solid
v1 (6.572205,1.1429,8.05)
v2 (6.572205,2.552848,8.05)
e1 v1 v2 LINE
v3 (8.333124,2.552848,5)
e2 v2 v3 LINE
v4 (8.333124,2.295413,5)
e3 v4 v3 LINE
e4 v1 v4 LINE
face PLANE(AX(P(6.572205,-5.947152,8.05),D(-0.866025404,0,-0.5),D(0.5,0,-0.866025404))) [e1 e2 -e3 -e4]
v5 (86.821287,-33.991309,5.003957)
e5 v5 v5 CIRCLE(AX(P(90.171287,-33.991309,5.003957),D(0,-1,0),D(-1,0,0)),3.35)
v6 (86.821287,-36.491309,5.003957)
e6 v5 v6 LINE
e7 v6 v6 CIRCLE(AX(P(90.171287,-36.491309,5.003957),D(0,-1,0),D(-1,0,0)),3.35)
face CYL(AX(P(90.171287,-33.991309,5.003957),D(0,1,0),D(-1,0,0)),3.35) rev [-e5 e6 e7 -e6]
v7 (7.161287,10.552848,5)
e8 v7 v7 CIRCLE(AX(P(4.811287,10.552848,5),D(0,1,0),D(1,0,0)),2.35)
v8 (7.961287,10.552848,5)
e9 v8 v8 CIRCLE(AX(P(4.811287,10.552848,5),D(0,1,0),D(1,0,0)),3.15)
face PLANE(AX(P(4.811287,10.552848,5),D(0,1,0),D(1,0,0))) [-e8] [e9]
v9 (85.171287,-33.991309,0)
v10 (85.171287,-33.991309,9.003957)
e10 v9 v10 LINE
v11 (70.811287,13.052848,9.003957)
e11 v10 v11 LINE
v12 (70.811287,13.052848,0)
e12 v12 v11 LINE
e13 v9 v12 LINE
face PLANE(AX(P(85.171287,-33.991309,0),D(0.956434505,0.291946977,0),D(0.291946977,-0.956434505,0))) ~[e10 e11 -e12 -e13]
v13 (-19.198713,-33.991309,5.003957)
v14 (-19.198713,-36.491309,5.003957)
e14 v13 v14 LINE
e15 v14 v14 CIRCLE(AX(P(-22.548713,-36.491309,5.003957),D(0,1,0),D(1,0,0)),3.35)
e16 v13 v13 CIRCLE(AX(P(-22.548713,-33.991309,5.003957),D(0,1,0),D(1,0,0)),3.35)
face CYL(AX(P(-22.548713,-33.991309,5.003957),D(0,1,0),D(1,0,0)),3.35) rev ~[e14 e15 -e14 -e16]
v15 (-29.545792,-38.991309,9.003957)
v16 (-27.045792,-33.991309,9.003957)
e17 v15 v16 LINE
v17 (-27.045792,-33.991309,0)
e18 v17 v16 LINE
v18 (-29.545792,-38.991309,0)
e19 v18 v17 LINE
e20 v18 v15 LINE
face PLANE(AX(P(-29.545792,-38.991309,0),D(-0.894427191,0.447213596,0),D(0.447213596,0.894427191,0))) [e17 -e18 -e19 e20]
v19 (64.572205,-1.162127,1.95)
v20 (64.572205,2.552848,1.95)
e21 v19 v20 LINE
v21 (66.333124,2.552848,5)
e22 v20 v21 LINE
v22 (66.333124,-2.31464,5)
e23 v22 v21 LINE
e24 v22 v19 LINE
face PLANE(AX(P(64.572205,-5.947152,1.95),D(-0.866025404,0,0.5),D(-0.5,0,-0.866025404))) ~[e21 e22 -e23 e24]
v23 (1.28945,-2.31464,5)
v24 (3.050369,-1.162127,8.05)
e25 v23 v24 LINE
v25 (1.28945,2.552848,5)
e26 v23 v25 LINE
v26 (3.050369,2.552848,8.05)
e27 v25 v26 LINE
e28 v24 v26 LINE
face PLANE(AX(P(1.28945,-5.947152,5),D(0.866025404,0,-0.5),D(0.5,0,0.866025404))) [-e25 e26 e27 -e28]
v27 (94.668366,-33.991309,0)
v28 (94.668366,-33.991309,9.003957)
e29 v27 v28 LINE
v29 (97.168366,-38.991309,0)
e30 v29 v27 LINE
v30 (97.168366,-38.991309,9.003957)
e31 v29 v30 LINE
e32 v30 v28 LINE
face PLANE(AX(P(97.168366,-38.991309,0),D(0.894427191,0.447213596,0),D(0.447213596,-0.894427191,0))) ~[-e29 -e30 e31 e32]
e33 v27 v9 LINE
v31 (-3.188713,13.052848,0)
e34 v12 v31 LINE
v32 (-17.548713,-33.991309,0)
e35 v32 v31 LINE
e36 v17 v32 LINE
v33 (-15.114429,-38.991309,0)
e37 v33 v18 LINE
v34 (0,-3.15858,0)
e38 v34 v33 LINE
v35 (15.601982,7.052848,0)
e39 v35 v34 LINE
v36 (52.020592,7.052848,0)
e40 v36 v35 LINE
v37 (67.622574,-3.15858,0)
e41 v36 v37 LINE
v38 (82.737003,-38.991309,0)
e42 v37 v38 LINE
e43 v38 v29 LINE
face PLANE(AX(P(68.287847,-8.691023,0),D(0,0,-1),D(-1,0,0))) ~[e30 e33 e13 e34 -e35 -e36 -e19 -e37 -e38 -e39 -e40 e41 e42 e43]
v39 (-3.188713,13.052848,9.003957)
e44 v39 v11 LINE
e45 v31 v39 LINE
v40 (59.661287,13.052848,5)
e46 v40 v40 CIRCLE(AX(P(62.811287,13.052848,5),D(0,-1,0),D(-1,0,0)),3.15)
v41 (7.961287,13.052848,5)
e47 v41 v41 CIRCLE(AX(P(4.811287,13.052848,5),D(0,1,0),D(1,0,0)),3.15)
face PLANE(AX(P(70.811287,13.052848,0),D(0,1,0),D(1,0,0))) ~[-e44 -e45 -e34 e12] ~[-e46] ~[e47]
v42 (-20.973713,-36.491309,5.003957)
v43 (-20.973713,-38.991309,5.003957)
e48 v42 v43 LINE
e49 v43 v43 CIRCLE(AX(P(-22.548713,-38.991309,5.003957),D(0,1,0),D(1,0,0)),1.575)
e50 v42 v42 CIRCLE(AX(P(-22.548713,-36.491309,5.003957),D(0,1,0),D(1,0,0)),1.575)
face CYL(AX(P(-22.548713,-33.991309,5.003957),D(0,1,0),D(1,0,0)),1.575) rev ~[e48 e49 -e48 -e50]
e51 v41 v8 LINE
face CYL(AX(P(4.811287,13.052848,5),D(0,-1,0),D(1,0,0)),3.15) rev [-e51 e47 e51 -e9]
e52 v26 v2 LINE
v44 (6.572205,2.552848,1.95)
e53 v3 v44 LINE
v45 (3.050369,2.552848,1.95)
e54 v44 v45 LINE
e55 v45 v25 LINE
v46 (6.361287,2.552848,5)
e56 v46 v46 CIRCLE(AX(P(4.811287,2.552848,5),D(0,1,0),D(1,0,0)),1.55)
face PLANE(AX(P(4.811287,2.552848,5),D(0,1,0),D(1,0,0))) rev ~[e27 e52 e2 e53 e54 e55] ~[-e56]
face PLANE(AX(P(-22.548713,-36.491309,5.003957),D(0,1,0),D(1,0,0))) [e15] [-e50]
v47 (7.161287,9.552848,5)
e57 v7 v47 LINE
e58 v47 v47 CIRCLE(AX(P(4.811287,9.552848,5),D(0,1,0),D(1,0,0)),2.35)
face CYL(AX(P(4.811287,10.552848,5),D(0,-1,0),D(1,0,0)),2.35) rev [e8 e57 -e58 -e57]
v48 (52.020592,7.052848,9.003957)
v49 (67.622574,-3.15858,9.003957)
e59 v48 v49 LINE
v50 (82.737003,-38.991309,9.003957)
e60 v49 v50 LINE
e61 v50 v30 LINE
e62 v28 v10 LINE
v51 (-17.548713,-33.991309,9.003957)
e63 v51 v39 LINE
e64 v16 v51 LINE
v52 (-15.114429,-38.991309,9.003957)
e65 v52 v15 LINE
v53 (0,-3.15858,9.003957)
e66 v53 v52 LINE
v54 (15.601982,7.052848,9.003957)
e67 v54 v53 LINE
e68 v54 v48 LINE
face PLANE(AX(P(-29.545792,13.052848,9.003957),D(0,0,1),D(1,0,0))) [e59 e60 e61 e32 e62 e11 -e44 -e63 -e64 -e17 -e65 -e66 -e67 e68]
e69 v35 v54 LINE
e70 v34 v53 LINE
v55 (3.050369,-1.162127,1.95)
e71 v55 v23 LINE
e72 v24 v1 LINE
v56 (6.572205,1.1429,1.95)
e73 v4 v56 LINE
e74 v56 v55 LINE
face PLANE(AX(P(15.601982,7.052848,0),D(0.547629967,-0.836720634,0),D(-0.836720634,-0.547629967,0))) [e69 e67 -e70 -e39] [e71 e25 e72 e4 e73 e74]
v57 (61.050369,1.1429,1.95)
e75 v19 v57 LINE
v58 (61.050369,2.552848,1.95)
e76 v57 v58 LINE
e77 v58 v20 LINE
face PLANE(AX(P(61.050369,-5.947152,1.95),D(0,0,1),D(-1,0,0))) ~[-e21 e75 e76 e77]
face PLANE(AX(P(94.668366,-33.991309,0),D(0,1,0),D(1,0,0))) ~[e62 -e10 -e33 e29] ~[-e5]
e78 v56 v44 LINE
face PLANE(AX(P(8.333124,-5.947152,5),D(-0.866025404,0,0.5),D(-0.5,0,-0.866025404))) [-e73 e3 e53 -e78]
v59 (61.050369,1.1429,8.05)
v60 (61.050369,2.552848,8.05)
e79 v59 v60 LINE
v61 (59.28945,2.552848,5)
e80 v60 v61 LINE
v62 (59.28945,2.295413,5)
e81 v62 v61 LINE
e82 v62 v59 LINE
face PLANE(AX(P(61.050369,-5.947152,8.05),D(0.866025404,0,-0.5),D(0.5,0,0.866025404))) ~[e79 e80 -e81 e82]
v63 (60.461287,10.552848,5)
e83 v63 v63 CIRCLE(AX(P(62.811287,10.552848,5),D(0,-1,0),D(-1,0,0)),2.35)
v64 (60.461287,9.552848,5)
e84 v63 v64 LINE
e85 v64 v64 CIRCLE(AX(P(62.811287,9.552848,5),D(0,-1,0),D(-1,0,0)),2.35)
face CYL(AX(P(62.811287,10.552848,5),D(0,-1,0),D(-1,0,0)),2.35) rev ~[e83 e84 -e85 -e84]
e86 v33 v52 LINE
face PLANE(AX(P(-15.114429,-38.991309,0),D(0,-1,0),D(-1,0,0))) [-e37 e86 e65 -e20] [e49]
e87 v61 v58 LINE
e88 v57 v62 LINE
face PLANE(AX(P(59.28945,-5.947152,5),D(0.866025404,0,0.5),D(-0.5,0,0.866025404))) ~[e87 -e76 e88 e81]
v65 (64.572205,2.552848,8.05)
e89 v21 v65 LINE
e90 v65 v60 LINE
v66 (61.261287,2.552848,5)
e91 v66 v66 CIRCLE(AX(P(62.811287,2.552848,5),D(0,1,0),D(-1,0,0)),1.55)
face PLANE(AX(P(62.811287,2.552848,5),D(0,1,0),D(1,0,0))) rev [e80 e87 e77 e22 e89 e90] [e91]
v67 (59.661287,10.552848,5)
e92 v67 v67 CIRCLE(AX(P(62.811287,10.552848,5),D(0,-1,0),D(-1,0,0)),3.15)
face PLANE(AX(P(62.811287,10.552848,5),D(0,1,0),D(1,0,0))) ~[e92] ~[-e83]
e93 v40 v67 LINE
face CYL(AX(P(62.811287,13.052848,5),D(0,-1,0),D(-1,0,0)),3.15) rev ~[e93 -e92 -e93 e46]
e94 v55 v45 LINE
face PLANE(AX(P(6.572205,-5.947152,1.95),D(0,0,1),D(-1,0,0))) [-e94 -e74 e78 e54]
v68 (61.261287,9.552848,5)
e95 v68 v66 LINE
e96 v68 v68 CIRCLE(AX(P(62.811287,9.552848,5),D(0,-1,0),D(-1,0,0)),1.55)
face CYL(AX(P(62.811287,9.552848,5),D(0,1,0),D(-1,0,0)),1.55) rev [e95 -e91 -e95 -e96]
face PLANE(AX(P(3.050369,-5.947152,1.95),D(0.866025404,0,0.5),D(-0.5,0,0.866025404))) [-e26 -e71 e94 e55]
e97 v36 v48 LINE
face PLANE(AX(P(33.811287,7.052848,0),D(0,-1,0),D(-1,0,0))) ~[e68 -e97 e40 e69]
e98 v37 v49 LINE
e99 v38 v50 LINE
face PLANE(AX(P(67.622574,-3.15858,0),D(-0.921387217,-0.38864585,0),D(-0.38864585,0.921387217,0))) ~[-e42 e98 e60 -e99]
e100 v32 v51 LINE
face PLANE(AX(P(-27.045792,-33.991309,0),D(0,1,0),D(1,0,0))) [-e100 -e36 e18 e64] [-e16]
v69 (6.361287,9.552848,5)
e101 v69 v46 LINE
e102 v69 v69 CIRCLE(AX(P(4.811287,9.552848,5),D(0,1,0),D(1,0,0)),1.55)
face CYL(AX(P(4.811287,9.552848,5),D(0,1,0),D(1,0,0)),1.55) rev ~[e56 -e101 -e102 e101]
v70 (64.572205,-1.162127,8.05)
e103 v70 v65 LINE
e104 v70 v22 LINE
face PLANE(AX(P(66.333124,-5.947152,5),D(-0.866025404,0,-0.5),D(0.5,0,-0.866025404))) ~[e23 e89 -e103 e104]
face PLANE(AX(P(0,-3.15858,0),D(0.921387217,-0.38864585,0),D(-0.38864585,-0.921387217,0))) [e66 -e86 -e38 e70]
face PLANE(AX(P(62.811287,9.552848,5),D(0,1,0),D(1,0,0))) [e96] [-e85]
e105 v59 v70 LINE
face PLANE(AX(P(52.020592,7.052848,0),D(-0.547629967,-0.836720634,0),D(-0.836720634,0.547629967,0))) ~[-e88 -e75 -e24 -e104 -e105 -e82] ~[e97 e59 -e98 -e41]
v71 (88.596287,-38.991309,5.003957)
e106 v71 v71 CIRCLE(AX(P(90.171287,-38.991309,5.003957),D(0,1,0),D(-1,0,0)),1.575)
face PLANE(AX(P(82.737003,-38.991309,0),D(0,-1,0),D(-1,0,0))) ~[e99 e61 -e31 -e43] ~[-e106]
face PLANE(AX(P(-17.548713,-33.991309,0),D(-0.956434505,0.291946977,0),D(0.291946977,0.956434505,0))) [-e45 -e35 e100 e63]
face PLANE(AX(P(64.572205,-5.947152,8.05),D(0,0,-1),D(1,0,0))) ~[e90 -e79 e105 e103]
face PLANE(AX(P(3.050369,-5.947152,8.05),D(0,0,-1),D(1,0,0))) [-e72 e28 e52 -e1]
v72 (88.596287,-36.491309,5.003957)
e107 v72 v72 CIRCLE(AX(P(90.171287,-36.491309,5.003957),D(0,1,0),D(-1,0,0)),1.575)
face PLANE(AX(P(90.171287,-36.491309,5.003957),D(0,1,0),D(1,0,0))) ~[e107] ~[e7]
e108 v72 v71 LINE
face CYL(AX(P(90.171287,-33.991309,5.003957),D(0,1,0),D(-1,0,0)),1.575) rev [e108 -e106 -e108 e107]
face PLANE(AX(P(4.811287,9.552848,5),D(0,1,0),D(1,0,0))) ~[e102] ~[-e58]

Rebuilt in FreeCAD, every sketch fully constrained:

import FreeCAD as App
import Part
import Sketcher
from FreeCAD import Vector
Q = App.Units.Quantity


def add_polygon(sketch, points):
    """Adds a closed chain of lines whose ends are joined by coincident constraints."""
    first, n = sketch.GeometryCount, len(points)
    for a, b in zip(points, points[1:] + points[:1]):
        sketch.addGeometry(Part.LineSegment(App.Vector(*a, 0), App.Vector(*b, 0)), False)
    for i in range(n):
        sketch.addConstraint(Sketcher.Constraint("Coincident", first + i, 2, first + (i + 1) % n, 1))

doc = App.newDocument("Part")
params = doc.addObject("Spreadsheet::Sheet", "Params")
for row, (alias, value) in enumerate([
    ("sketch1_width", "37 mm"),
    ("sketch1_height", "6 mm"),
    ("pad1_length", "10 mm"),
    ("sketch2_height", "1 mm"),
    ("sketch2_width", "0.8 mm"),
    ("sketch2_height2", "2.5 mm"),
    ("sketch2_width2", "3.15 mm"),
    ("groove_angle", "360 deg"),
    ("sketch3_diameter", "3.1 mm"),
    ("pocket2_length", "8.5 mm"),
    ("sketch6_diameter", "3.15 mm"),
    ("pocket4_length", "10 mm"),
    ("sketch7_diameter", "6.7 mm"),
    ("pocket5_length", "2.5 mm"),
], start=1):
    params.set(f"A{row}", alias)
    params.set(f"B{row}", "=" + value)
    params.setAlias(f"B{row}", alias)

body = doc.addObject("PartDesign::Body", "Body")

# Sketch on XY plane
sketch1 = doc.addObject("Sketcher::SketchObject", "Sketch")
body.addObject(sketch1)
sketch1.AttachmentSupport = (doc.XY_Plane, [""])
sketch1.MapMode = "FlatFace"
add_polygon(sketch1, [(34, 13), (-3, 13), (-18, -34), (-27, -34), (-30, -39), (-15, -39), (0, -3), (16, 7), (34, 7)])  # lines 0-8
sketch1.addConstraint([
    Sketcher.Constraint("Horizontal", 0),
    Sketcher.Constraint("Horizontal", 2),
    Sketcher.Constraint("Horizontal", 4),
    Sketcher.Constraint("Horizontal", 7),
    Sketcher.Constraint("Vertical", 8),
    Sketcher.Constraint("PointOnObject", 5, 2, -2),
    Sketcher.Constraint("DistanceX", 0, 2, 0, 1, Q("37 mm")),
    Sketcher.Constraint("DistanceY", 8, 1, 8, 2, Q("6 mm")),
    Sketcher.Constraint("DistanceY", 3, 2, 2, 2, Q("5 mm")),
    Sketcher.Constraint("DistanceX", 3, 2, 2, 2, Q("2.5 mm")),
    Sketcher.Constraint("DistanceX", 1, 2, 0, 2, Q("14.36 mm")),
    Sketcher.Constraint("DistanceX", 2, 2, 2, 1, Q("9.497079 mm")),
    Sketcher.Constraint("Distance", 5, Q("38.889978 mm")),
    Sketcher.Constraint("DistanceX", 4, 1, 4, 2, Q("14.431363 mm")),
    Sketcher.Constraint("DistanceX", 7, 1, 7, 2, Q("18.209305 mm")),
    Sketcher.Constraint("DistanceY", -1, 1, 0, 2, Q("13.052848 mm")),
    Sketcher.Constraint("DistanceY", 1, 2, -1, 1, Q("33.991309 mm")),
    Sketcher.Constraint("DistanceX", 2, 2, -1, 1, Q("27.045792 mm")),
])
sketch1.setExpression("Constraints[15]", "Params.sketch1_width")
sketch1.setExpression("Constraints[16]", "Params.sketch1_height")
pad1 = doc.addObject("PartDesign::Pad", "Pad")
body.addObject(pad1)
pad1.Profile = sketch1
pad1.setExpression("Length", "Params.pad1_length")
doc.recompute()

datumplane = doc.addObject("PartDesign::Plane", "DatumPlane")
body.addObject(datumplane)
datumplane.AttachmentSupport = (doc.YZ_Plane, [""])
datumplane.MapMode = "FlatFace"
datumplane.AttachmentOffset = App.Placement(Vector(0, 0, 33.811287), App.Rotation())
mirrored = doc.addObject("PartDesign::Mirrored", "Mirrored")
body.addObject(mirrored)
mirrored.Originals = [pad1]
mirrored.MirrorPlane = (datumplane, [""])
body.Tip = mirrored

# Sketch on XY plane
sketch2 = doc.addObject("Sketcher::SketchObject", "Sketch001")
body.addObject(sketch2)
sketch2.AttachmentSupport = (doc.XY_Plane, [""])
sketch2.MapMode = "FlatFace"
sketch2.AttachmentOffset = App.Placement(Vector(0, 0, 5), App.Rotation())
add_polygon(sketch2, [(8, 10.6), (8, 13.1), (4.8, 13.1), (4.8, 9.6), (7.2, 9.6), (7.2, 10.6)])  # lines 0-5
sketch2.addGeometry(Part.LineSegment(Vector(4.8, 9.6, 0), Vector(4.8, 13.1, 0)), True)  # axis
sketch2.addConstraint([
    Sketcher.Constraint("Vertical", 0),
    Sketcher.Constraint("Horizontal", 1),
    Sketcher.Constraint("Vertical", 2),
    Sketcher.Constraint("Horizontal", 3),
    Sketcher.Constraint("Vertical", 4),
    Sketcher.Constraint("Horizontal", 5),
    Sketcher.Constraint("Vertical", 6),
    Sketcher.Constraint("Coincident", 6, 1, 2, 2),
    Sketcher.Constraint("Horizontal", 0, 2, 6, 2),
    Sketcher.Constraint("DistanceY", 4, 1, 4, 2, Q("1 mm")),
    Sketcher.Constraint("DistanceX", 5, 1, 5, 2, Q("0.8 mm")),
    Sketcher.Constraint("DistanceY", 0, 1, 0, 2, Q("2.5 mm")),
    Sketcher.Constraint("DistanceX", 1, 2, 1, 1, Q("3.15 mm")),
    Sketcher.Constraint("DistanceY", -1, 1, 0, 2, Q("13.052848 mm")),
    Sketcher.Constraint("DistanceX", -1, 1, 0, 2, Q("7.961287 mm")),
])
sketch2.setExpression("Constraints[15]", "Params.sketch2_height")
sketch2.setExpression("Constraints[16]", "Params.sketch2_width")
sketch2.setExpression("Constraints[17]", "Params.sketch2_height2")
sketch2.setExpression("Constraints[18]", "Params.sketch2_width2")
groove = doc.addObject("PartDesign::Groove", "Groove")
body.addObject(groove)
groove.Profile = sketch2
groove.ReferenceAxis = (sketch2, ["Axis0"])
groove.setExpression("Angle", "Params.groove_angle")

# Sketch on XZ plane
sketch3 = doc.addObject("Sketcher::SketchObject", "Sketch002")
body.addObject(sketch3)
sketch3.AttachmentSupport = (doc.XZ_Plane, [""])
sketch3.MapMode = "FlatFace"
sketch3.AttachmentOffset = App.Placement(Vector(0, 0, -9.552848), App.Rotation())
sketch3.addGeometry(Part.Circle(Vector(4.8, 5, 0), Vector(0, 0, 1), 1.6), False)
sketch3.addConstraint([
    Sketcher.Constraint("Diameter", 0, Q("3.1 mm")),
    Sketcher.Constraint("DistanceY", -1, 1, 0, 3, Q("5 mm")),
    Sketcher.Constraint("DistanceX", -1, 1, 0, 3, Q("4.811287 mm")),
])
sketch3.setExpression("Constraints[0]", "Params.sketch3_diameter")
pocket1 = doc.addObject("PartDesign::Pocket", "Pocket")
body.addObject(pocket1)
pocket1.Profile = sketch3
pocket1.Type = "ThroughAll"
pocket1.Reversed = True

# Sketch on XZ plane
sketch4 = doc.addObject("Sketcher::SketchObject", "Sketch003")
body.addObject(sketch4)
sketch4.AttachmentSupport = (doc.XZ_Plane, [""])
sketch4.MapMode = "FlatFace"
sketch4.AttachmentOffset = App.Placement(Vector(0, 0, 5.947152), App.Rotation())
add_polygon(sketch4, [(8.3, 5), (6.6, 1.9), (3.1, 1.9), (1.3, 5), (3.1, 8.1), (6.6, 8.1)])  # lines 0-5
sketch4.addConstraint([
    Sketcher.Constraint("Horizontal", 1),
    Sketcher.Constraint("Horizontal", 4),
    Sketcher.Constraint("Parallel", 0, 3),
    Sketcher.Constraint("Parallel", 2, 5),
    Sketcher.Constraint("Horizontal", 2, 2, 5, 2),
    Sketcher.Constraint("Vertical", 1, 2, 3, 2),
    Sketcher.Constraint("Vertical", 0, 2, 4, 2),
    Sketcher.Constraint("Angle", 0, Q("-120 deg")),
    Sketcher.Constraint("DistanceY", -1, 1, 2, 2, Q("5 mm")),
    Sketcher.Constraint("DistanceY", 1, 2, 3, 2, Q("6.1 mm")),
    Sketcher.Constraint("DistanceX", 1, 2, 1, 1, Q("3.521837 mm")),
    Sketcher.Constraint("DistanceX", -1, 1, 1, 2, Q("3.050369 mm")),
])
pocket2 = doc.addObject("PartDesign::Pocket", "Pocket001")
body.addObject(pocket2)
pocket2.Profile = sketch4
pocket2.setExpression("Length", "Params.pocket2_length")

# Sketch on XZ plane
sketch5 = doc.addObject("Sketcher::SketchObject", "Sketch004")
body.addObject(sketch5)
sketch5.AttachmentSupport = (doc.XZ_Plane, [""])
sketch5.MapMode = "FlatFace"
sketch5.AttachmentOffset = App.Placement(Vector(0, 0, -13.052848), App.Rotation())
add_polygon(sketch5, [(-29.5, 9), (-29.5, 10), (97.2, 10), (97.2, 9)])  # lines 0-3
sketch5.addConstraint([
    Sketcher.Constraint("Vertical", 0),
    Sketcher.Constraint("Horizontal", 1),
    Sketcher.Constraint("Vertical", 2),
    Sketcher.Constraint("Horizontal", 3),
    Sketcher.Constraint("DistanceY", -1, 1, 0, 2, Q("10 mm")),
    Sketcher.Constraint("DistanceX", 1, 1, 1, 2, Q("126.714157 mm")),
    Sketcher.Constraint("DistanceY", 0, 1, 0, 2, Q("0.996043 mm")),
    Sketcher.Constraint("DistanceX", 0, 2, -1, 1, Q("29.545792 mm")),
])
pocket3 = doc.addObject("PartDesign::Pocket", "Pocket002")
body.addObject(pocket3)
pocket3.Profile = sketch5
pocket3.Type = "ThroughAll"
pocket3.Reversed = True

# Sketch on XZ plane
sketch6 = doc.addObject("Sketcher::SketchObject", "Sketch005")
body.addObject(sketch6)
sketch6.AttachmentSupport = (doc.XZ_Plane, [""])
sketch6.MapMode = "FlatFace"
sketch6.AttachmentOffset = App.Placement(Vector(0, 0, 33.991309), App.Rotation())
sketch6.addGeometry(Part.Circle(Vector(-22.5, 5, 0), Vector(0, 0, 1), 1.6), False)
sketch6.addConstraint([
    Sketcher.Constraint("Diameter", 0, Q("3.15 mm")),
    Sketcher.Constraint("DistanceX", 0, 3, -1, 1, Q("22.548713 mm")),
    Sketcher.Constraint("DistanceY", -1, 1, 0, 3, Q("5.003957 mm")),
])
sketch6.setExpression("Constraints[0]", "Params.sketch6_diameter")
pocket4 = doc.addObject("PartDesign::Pocket", "Pocket003")
body.addObject(pocket4)
pocket4.Profile = sketch6
pocket4.setExpression("Length", "Params.pocket4_length")
pocket4.Reversed = True

# Sketch on XZ plane
sketch7 = doc.addObject("Sketcher::SketchObject", "Sketch006")
body.addObject(sketch7)
sketch7.AttachmentSupport = (doc.XZ_Plane, [""])
sketch7.MapMode = "FlatFace"
sketch7.AttachmentOffset = App.Placement(Vector(0, 0, 33.991309), App.Rotation())
sketch7.addGeometry(Part.Circle(Vector(-22.5, 5, 0), Vector(0, 0, 1), 3.4), False)
sketch7.addConstraint([
    Sketcher.Constraint("Diameter", 0, Q("6.7 mm")),
    Sketcher.Constraint("DistanceX", 0, 3, -1, 1, Q("22.548713 mm")),
    Sketcher.Constraint("DistanceY", -1, 1, 0, 3, Q("5.003957 mm")),
])
sketch7.setExpression("Constraints[0]", "Params.sketch7_diameter")
pocket5 = doc.addObject("PartDesign::Pocket", "Pocket004")
body.addObject(pocket5)
pocket5.Profile = sketch7
pocket5.setExpression("Length", "Params.pocket5_length")
pocket5.Reversed = True
doc.recompute()

datumplane2 = doc.addObject("PartDesign::Plane", "DatumPlane001")
body.addObject(datumplane2)
datumplane2.AttachmentSupport = (doc.YZ_Plane, [""])
datumplane2.MapMode = "FlatFace"
datumplane2.AttachmentOffset = App.Placement(Vector(0, 0, 33.811287), App.Rotation())
mirrored2 = doc.addObject("PartDesign::Mirrored", "Mirrored001")
body.addObject(mirrored2)
mirrored2.Originals = [groove, pocket1, pocket2, pocket4, pocket5]
mirrored2.MirrorPlane = (datumplane2, [""])
body.Tip = mirrored2

doc.recompute()
